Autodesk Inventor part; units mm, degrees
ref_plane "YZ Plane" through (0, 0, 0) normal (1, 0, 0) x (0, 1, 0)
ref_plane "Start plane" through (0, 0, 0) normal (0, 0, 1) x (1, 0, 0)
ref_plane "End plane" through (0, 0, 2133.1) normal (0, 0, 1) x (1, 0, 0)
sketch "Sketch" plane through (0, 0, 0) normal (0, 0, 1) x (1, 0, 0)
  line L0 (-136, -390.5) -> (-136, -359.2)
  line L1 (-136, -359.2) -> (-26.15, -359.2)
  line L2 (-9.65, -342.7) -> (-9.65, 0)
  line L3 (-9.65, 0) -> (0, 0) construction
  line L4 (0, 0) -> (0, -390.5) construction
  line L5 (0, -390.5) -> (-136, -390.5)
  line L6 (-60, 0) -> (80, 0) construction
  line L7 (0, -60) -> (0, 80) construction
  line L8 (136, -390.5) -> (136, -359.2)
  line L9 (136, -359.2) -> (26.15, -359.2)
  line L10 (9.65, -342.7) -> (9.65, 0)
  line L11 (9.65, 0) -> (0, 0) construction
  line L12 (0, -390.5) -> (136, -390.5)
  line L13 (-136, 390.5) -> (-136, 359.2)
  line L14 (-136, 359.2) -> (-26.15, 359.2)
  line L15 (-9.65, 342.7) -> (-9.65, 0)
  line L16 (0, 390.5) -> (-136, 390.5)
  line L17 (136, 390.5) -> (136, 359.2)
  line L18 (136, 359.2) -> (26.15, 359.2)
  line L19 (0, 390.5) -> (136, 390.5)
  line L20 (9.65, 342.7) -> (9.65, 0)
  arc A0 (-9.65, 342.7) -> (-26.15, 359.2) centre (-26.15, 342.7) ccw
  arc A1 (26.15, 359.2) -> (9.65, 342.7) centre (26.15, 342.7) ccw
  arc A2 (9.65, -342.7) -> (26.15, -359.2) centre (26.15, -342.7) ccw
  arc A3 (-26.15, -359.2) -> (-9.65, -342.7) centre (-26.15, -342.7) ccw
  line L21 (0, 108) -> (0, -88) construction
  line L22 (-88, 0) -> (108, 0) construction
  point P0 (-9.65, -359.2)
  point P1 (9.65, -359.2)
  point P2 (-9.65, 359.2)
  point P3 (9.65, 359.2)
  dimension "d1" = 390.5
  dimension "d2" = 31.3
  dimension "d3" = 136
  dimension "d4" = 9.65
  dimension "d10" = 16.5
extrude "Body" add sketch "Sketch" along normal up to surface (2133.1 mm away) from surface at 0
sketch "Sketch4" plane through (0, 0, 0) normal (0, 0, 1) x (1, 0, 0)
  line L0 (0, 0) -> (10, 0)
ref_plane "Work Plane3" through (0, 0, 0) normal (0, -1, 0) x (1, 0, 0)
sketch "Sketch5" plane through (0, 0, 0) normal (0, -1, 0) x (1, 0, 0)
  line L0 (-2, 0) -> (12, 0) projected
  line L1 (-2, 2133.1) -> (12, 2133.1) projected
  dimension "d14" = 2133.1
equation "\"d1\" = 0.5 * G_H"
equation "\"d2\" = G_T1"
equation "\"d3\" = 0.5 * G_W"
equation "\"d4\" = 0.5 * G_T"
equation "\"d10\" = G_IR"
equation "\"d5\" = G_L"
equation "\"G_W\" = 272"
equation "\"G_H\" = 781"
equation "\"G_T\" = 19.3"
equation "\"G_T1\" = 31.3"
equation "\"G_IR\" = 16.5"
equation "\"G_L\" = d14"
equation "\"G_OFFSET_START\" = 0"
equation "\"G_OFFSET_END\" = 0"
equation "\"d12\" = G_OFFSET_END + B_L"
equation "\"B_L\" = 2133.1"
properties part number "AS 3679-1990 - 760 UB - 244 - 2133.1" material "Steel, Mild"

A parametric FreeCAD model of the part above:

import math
import FreeCAD as App
import Part
import Sketcher
from FreeCAD import Vector
Q = App.Units.Quantity

doc = App.newDocument("Part")
params = doc.addObject("Spreadsheet::Sheet", "Params")
for row, (alias, value) in enumerate([
    ("sketch1_radius", "16.5 mm"),
    ("sketch1_height", "31.3 mm"),
    ("pad1_length", "2133.1 mm"),
], start=1):
    params.set(f"A{row}", alias)
    params.set(f"B{row}", "=" + value)
    params.setAlias(f"B{row}", alias)

body = doc.addObject("PartDesign::Body", "Body")

sketch1 = body.newObject("Sketcher::SketchObject", "Sketch")
sketch1.AttachmentSupport = (doc.getObject("XY_Plane"), [""])
sketch1.MapMode = "FlatFace"
sketch1.addGeometry(Part.LineSegment(Vector(-136, -359, 0), Vector(-136, -390, 0)), False)
sketch1.addGeometry(Part.LineSegment(Vector(-136, -390, 0), Vector(136, -390, 0)), False)
sketch1.addGeometry(Part.LineSegment(Vector(136, -390, 0), Vector(136, -359, 0)), False)
sketch1.addGeometry(Part.LineSegment(Vector(136, -359, 0), Vector(26, -359, 0)), False)
sketch1.addGeometry(Part.ArcOfCircle(Part.Circle(Vector(26, -343, 0), Vector(0, 0, 1), 16), math.radians(180), math.radians(270)), False)
sketch1.addGeometry(Part.LineSegment(Vector(10, -343, 0), Vector(10, 343, 0)), False)
sketch1.addGeometry(Part.ArcOfCircle(Part.Circle(Vector(26, 343, 0), Vector(0, 0, 1), 16), math.radians(90), math.radians(180)), False)
sketch1.addGeometry(Part.LineSegment(Vector(26, 359, 0), Vector(136, 359, 0)), False)
sketch1.addGeometry(Part.LineSegment(Vector(136, 359, 0), Vector(136, 390, 0)), False)
sketch1.addGeometry(Part.LineSegment(Vector(136, 390, 0), Vector(-136, 390, 0)), False)
sketch1.addGeometry(Part.LineSegment(Vector(-136, 390, 0), Vector(-136, 359, 0)), False)
sketch1.addGeometry(Part.LineSegment(Vector(-136, 359, 0), Vector(-26, 359, 0)), False)
sketch1.addGeometry(Part.ArcOfCircle(Part.Circle(Vector(-26, 343, 0), Vector(0, 0, 1), 16), math.radians(0), math.radians(90)), False)
sketch1.addGeometry(Part.LineSegment(Vector(-10, 343, 0), Vector(-10, -343, 0)), False)
sketch1.addGeometry(Part.ArcOfCircle(Part.Circle(Vector(-26, -343, 0), Vector(0, 0, 1), 16), math.radians(-90), math.radians(0)), False)
sketch1.addGeometry(Part.LineSegment(Vector(-26, -359, 0), Vector(-136, -359, 0)), False)
sketch1.addConstraint(Sketcher.Constraint("Coincident", 0, 2, 1, 1))
sketch1.addConstraint(Sketcher.Constraint("Coincident", 1, 2, 2, 1))
sketch1.addConstraint(Sketcher.Constraint("Coincident", 2, 2, 3, 1))
sketch1.addConstraint(Sketcher.Constraint("Tangent", 3, 2, 4, 2))
sketch1.addConstraint(Sketcher.Constraint("Tangent", 4, 1, 5, 1))
sketch1.addConstraint(Sketcher.Constraint("Tangent", 5, 2, 6, 2))
sketch1.addConstraint(Sketcher.Constraint("Tangent", 6, 1, 7, 1))
sketch1.addConstraint(Sketcher.Constraint("Coincident", 7, 2, 8, 1))
sketch1.addConstraint(Sketcher.Constraint("Coincident", 8, 2, 9, 1))
sketch1.addConstraint(Sketcher.Constraint("Coincident", 9, 2, 10, 1))
sketch1.addConstraint(Sketcher.Constraint("Coincident", 10, 2, 11, 1))
sketch1.addConstraint(Sketcher.Constraint("Tangent", 11, 2, 12, 2))
sketch1.addConstraint(Sketcher.Constraint("Tangent", 12, 1, 13, 1))
sketch1.addConstraint(Sketcher.Constraint("Tangent", 13, 2, 14, 2))
sketch1.addConstraint(Sketcher.Constraint("Tangent", 14, 1, 15, 1))
sketch1.addConstraint(Sketcher.Constraint("Coincident", 15, 2, 0, 1))
sketch1.addConstraint(Sketcher.Constraint("Vertical", 0))
sketch1.addConstraint(Sketcher.Constraint("Horizontal", 1))
sketch1.addConstraint(Sketcher.Constraint("Vertical", 2))
sketch1.addConstraint(Sketcher.Constraint("Horizontal", 3))
sketch1.addConstraint(Sketcher.Constraint("Vertical", 5))
sketch1.addConstraint(Sketcher.Constraint("Horizontal", 7))
sketch1.addConstraint(Sketcher.Constraint("Vertical", 8))
sketch1.addConstraint(Sketcher.Constraint("Horizontal", 9))
sketch1.addConstraint(Sketcher.Constraint("Vertical", 10))
sketch1.addConstraint(Sketcher.Constraint("Horizontal", 11))
sketch1.addConstraint(Sketcher.Constraint("Vertical", 13))
sketch1.addConstraint(Sketcher.Constraint("Horizontal", 15))
sketch1.addConstraint(Sketcher.Constraint("Equal", 4, 6))
sketch1.addConstraint(Sketcher.Constraint("Equal", 6, 12))
sketch1.addConstraint(Sketcher.Constraint("Equal", 12, 14))
sketch1.addConstraint(Sketcher.Constraint("Symmetric", 4, 3, 12, 3, -1, 1))
sketch1.addConstraint(Sketcher.Constraint("Symmetric", 0, 2, 8, 2, -1, 1))
sketch1.addConstraint(Sketcher.Constraint("Symmetric", 7, 2, 10, 2, -2))
sketch1.addConstraint(Sketcher.Constraint("Symmetric", 2, 2, 15, 2, -2))
sketch1.addConstraint(Sketcher.Constraint("Radius", 4, Q("16.5 mm")))
sketch1.addConstraint(Sketcher.Constraint("DistanceY", 0, 2, 0, 1, Q("31.3 mm")))
sketch1.addConstraint(Sketcher.Constraint("DistanceX", 0, 2, -1, 1, Q("136 mm")))
sketch1.addConstraint(Sketcher.Constraint("DistanceY", 0, 2, -1, 1, Q("390.5 mm")))
sketch1.addConstraint(Sketcher.Constraint("DistanceX", -1, 1, 4, 1, Q("9.65 mm")))
sketch1.setExpression("Constraints[35]", "Params.sketch1_radius")
sketch1.setExpression("Constraints[36]", "Params.sketch1_height")
pad1 = body.newObject("PartDesign::Pad", "Pad")
pad1.Profile = sketch1
pad1.setExpression("Length", "Params.pad1_length")

doc.recompute()
